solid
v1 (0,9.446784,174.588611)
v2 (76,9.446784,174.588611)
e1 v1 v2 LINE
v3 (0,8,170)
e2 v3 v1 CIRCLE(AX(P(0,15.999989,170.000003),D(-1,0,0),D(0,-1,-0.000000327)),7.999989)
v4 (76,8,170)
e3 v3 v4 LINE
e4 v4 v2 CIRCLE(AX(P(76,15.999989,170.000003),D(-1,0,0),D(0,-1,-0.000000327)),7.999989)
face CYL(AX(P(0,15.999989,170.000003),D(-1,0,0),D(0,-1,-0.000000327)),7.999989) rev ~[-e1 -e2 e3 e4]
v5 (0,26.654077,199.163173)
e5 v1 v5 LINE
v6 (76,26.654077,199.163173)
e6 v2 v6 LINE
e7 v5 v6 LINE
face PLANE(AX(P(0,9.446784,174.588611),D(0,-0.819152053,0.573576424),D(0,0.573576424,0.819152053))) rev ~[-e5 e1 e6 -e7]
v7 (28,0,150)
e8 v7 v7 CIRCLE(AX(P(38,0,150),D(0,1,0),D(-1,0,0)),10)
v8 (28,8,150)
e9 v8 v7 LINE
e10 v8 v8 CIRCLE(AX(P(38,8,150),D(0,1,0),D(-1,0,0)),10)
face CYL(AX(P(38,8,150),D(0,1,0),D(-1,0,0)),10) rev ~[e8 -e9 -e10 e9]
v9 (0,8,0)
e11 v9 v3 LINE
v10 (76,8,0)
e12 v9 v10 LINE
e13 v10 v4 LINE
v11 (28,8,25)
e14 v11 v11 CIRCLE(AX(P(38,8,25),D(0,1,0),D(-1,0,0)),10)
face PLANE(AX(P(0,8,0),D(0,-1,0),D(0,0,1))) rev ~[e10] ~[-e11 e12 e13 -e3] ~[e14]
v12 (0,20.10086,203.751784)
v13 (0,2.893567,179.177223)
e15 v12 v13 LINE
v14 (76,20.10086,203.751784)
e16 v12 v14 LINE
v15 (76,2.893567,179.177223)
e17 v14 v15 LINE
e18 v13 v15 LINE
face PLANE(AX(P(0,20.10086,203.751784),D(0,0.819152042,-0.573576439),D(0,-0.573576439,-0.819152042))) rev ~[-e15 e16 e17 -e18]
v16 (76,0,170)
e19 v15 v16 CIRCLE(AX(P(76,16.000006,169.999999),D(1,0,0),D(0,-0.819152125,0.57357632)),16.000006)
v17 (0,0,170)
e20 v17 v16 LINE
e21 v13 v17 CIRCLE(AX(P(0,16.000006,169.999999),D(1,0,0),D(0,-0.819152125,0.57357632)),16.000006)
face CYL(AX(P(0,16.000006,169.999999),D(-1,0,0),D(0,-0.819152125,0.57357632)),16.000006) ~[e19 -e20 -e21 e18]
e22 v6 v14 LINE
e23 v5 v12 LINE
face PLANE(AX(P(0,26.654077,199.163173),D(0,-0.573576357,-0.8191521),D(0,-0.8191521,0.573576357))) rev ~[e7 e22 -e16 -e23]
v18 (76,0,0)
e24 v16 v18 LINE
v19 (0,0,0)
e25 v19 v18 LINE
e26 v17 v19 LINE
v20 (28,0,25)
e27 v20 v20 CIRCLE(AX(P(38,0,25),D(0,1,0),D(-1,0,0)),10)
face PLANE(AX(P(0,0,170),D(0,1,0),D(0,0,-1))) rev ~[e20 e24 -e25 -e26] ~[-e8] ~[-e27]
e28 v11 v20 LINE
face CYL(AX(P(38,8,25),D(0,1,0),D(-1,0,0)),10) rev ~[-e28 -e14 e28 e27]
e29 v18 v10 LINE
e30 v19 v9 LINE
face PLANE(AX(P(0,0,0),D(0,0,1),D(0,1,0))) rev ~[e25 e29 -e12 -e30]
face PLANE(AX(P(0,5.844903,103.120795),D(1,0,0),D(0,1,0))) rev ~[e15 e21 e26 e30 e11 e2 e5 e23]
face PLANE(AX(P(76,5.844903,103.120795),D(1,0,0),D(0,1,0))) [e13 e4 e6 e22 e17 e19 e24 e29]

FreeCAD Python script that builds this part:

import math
import FreeCAD as App
import Part
import Sketcher
from FreeCAD import Vector
Q = App.Units.Quantity

doc = App.newDocument("Part")
body = doc.addObject("PartDesign::Body", "Body")

# Sketch on YZ plane
sketch1 = body.newObject("Sketcher::SketchObject", "Sketch")
sketch1.AttachmentSupport = (doc.getObject("YZ_Plane"), [""])
sketch1.MapMode = "FlatFace"
sketch1.addGeometry(Part.LineSegment(Vector(0, 170, 0), Vector(0, 0, 0)), False)
sketch1.addGeometry(Part.LineSegment(Vector(0, 0, 0), Vector(8, 0, 0)), False)
sketch1.addGeometry(Part.LineSegment(Vector(8, 0, 0), Vector(8, 170, 0)), False)
sketch1.addGeometry(Part.ArcOfCircle(Part.Circle(Vector(16, 170, 0), Vector(0, 0, 1), 8), math.radians(145), math.radians(180)), False)
sketch1.addGeometry(Part.LineSegment(Vector(9.4, 174.6, 0), Vector(26.7, 199.2, 0)), False)
sketch1.addGeometry(Part.LineSegment(Vector(26.7, 199.2, 0), Vector(20.1, 203.8, 0)), False)
sketch1.addGeometry(Part.LineSegment(Vector(20.1, 203.8, 0), Vector(2.9, 179.2, 0)), False)
sketch1.addGeometry(Part.ArcOfCircle(Part.Circle(Vector(16, 170, 0), Vector(0, 0, 1), 16), math.radians(145), math.radians(180)), False)
sketch1.addConstraint(Sketcher.Constraint("Coincident", 0, 2, 1, 1))
sketch1.addConstraint(Sketcher.Constraint("Coincident", 1, 2, 2, 1))
sketch1.addConstraint(Sketcher.Constraint("Tangent", 2, 2, 3, 2))
sketch1.addConstraint(Sketcher.Constraint("Tangent", 3, 1, 4, 1))
sketch1.addConstraint(Sketcher.Constraint("Coincident", 4, 2, 5, 1))
sketch1.addConstraint(Sketcher.Constraint("Coincident", 5, 2, 6, 1))
sketch1.addConstraint(Sketcher.Constraint("Tangent", 6, 2, 7, 1))
sketch1.addConstraint(Sketcher.Constraint("Tangent", 7, 2, 0, 1))
sketch1.addConstraint(Sketcher.Constraint("Vertical", 0))
sketch1.addConstraint(Sketcher.Constraint("Horizontal", 1))
sketch1.addConstraint(Sketcher.Constraint("Vertical", 2))
sketch1.addConstraint(Sketcher.Constraint("Coincident", 0, 2, -1, 1))
sketch1.addConstraint(Sketcher.Constraint("Perpendicular", 4, 5))
sketch1.addConstraint(Sketcher.Constraint("Perpendicular", 5, 6))
sketch1.addConstraint(Sketcher.Constraint("Horizontal", 7, 3, 2, 2))
sketch1.addConstraint(Sketcher.Constraint("Equal", 4, 6))
sketch1.addConstraint(Sketcher.Constraint("DistanceX", 1, 1, 1, 2, Q("8 mm")))
sketch1.addConstraint(Sketcher.Constraint("DistanceY", 0, 2, 0, 1, Q("170 mm")))
sketch1.addConstraint(Sketcher.Constraint("Angle", 4, Q("55.000001 deg")))
sketch1.addConstraint(Sketcher.Constraint("Distance", 4, Q("30 mm")))
sketch1.addConstraint(Sketcher.Constraint("Radius", 3, Q("7.999989 mm")))
pad1 = body.newObject("PartDesign::Pad", "Pad")
pad1.Profile = sketch1
pad1.Length = 76

# Sketch on XZ plane
sketch2 = body.newObject("Sketcher::SketchObject", "Sketch001")
sketch2.AttachmentSupport = (doc.getObject("XZ_Plane"), [""])
sketch2.MapMode = "FlatFace"
sketch2.AttachmentOffset = App.Placement(Vector(0, 0, -8), App.Rotation())
sketch2.addGeometry(Part.Circle(Vector(38, 150, 0), Vector(0, 0, 1), 10), False)
sketch2.addGeometry(Part.Circle(Vector(38, 25, 0), Vector(0, 0, 1), 10), False)
sketch2.addConstraint(Sketcher.Constraint("Equal", 0, 1))
sketch2.addConstraint(Sketcher.Constraint("Vertical", 0, 3, 1, 3))
sketch2.addConstraint(Sketcher.Constraint("Diameter", 0, Q("20 mm")))
sketch2.addConstraint(Sketcher.Constraint("DistanceX", -1, 1, 0, 3, Q("38 mm")))
sketch2.addConstraint(Sketcher.Constraint("DistanceY", -1, 1, 0, 3, Q("150 mm")))
sketch2.addConstraint(Sketcher.Constraint("DistanceY", -1, 1, 1, 3, Q("25 mm")))
pocket1 = body.newObject("PartDesign::Pocket", "Pocket")
pocket1.Profile = sketch2
pocket1.Type = "ThroughAll"
pocket1.Reversed = True

doc.recompute()
